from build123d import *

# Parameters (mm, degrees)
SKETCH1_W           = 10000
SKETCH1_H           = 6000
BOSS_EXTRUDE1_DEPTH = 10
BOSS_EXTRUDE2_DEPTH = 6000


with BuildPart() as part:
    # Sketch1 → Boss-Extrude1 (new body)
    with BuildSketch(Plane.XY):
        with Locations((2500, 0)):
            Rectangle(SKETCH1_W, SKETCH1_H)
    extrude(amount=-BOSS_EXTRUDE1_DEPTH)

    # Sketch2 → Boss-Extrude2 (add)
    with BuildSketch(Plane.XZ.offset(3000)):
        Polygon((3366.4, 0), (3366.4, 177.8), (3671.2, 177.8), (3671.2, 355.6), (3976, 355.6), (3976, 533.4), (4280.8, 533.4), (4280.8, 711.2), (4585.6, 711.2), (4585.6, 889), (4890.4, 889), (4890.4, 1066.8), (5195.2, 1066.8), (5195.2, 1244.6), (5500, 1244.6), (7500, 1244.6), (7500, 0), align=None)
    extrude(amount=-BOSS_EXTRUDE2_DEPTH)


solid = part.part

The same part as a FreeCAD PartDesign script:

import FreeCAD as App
import Part
import Sketcher

V = App.Vector
Q = App.Units.Quantity

doc = App.newDocument("Part")
body = doc.addObject("PartDesign::Body", "Body")

sketch1 = body.newObject("Sketcher::SketchObject", "Sketch")
sketch1.AttachmentSupport = (doc.getObject("XY_Plane"), [""])
sketch1.MapMode = "FlatFace"
sketch1.addGeometry([
    Part.LineSegment(V(-2500, 3000, 0), V(-2500, -3000, 0)),
    Part.LineSegment(V(-2500, -3000, 0), V(7500, -3000, 0)),
    Part.LineSegment(V(7500, -3000, 0), V(7500, 3000, 0)),
    Part.LineSegment(V(7500, 3000, 0), V(-2500, 3000, 0)),
], False)
sketch1.addConstraint([
    Sketcher.Constraint("Coincident", 0, 2, 1, 1),
    Sketcher.Constraint("Coincident", 1, 2, 2, 1),
    Sketcher.Constraint("Coincident", 2, 2, 3, 1),
    Sketcher.Constraint("Coincident", 3, 2, 0, 1),
    Sketcher.Constraint("Vertical", 0),
    Sketcher.Constraint("Horizontal", 1),
    Sketcher.Constraint("Vertical", 2),
    Sketcher.Constraint("Horizontal", 3),
    Sketcher.Constraint("DistanceX", 1, 1, 1, 2, Q("10000 mm")),
    Sketcher.Constraint("DistanceY", 0, 2, 0, 1, Q("6000 mm")),
    Sketcher.Constraint("DistanceX", 0, 2, -1, 1, Q("2500 mm")),
    Sketcher.Constraint("DistanceY", 0, 2, -1, 1, Q("3000 mm")),
])
pad1 = body.newObject("PartDesign::Pad", "Pad")
pad1.Profile = sketch1
pad1.Length = 10
pad1.Reversed = True

sketch2 = body.newObject("Sketcher::SketchObject", "Sketch001")
sketch2.AttachmentSupport = (doc.getObject("XZ_Plane"), [""])
sketch2.MapMode = "FlatFace"
sketch2.AttachmentOffset = App.Placement(V(0, 0, 3000), App.Rotation())
sketch2.addGeometry([
    Part.LineSegment(V(3366.4, 177.8, 0), V(3366.4, 0, 0)),
    Part.LineSegment(V(3366.4, 0, 0), V(7500, 0, 0)),
    Part.LineSegment(V(7500, 0, 0), V(7500, 1244.6, 0)),
    Part.LineSegment(V(7500, 1244.6, 0), V(5195.2, 1244.6, 0)),
    Part.LineSegment(V(5195.2, 1244.6, 0), V(5195.2, 1066.8, 0)),
    Part.LineSegment(V(5195.2, 1066.8, 0), V(4890.4, 1066.8, 0)),
    Part.LineSegment(V(4890.4, 1066.8, 0), V(4890.4, 889, 0)),
    Part.LineSegment(V(4890.4, 889, 0), V(4585.6, 889, 0)),
    Part.LineSegment(V(4585.6, 889, 0), V(4585.6, 711.2, 0)),
    Part.LineSegment(V(4585.6, 711.2, 0), V(4280.8, 711.2, 0)),
    Part.LineSegment(V(4280.8, 711.2, 0), V(4280.8, 533.4, 0)),
    Part.LineSegment(V(4280.8, 533.4, 0), V(3976, 533.4, 0)),
    Part.LineSegment(V(3976, 533.4, 0), V(3976, 355.6, 0)),
    Part.LineSegment(V(3976, 355.6, 0), V(3671.2, 355.6, 0)),
    Part.LineSegment(V(3671.2, 355.6, 0), V(3671.2, 177.8, 0)),
    Part.LineSegment(V(3671.2, 177.8, 0), V(3366.4, 177.8, 0)),
], False)
sketch2.addConstraint([
    Sketcher.Constraint("Coincident", 0, 2, 1, 1),
    Sketcher.Constraint("Coincident", 1, 2, 2, 1),
    Sketcher.Constraint("Coincident", 2, 2, 3, 1),
    Sketcher.Constraint("Coincident", 3, 2, 4, 1),
    Sketcher.Constraint("Coincident", 4, 2, 5, 1),
    Sketcher.Constraint("Coincident", 5, 2, 6, 1),
    Sketcher.Constraint("Coincident", 6, 2, 7, 1),
    Sketcher.Constraint("Coincident", 7, 2, 8, 1),
    Sketcher.Constraint("Coincident", 8, 2, 9, 1),
    Sketcher.Constraint("Coincident", 9, 2, 10, 1),
    Sketcher.Constraint("Coincident", 10, 2, 11, 1),
    Sketcher.Constraint("Coincident", 11, 2, 12, 1),
    Sketcher.Constraint("Coincident", 12, 2, 13, 1),
    Sketcher.Constraint("Coincident", 13, 2, 14, 1),
    Sketcher.Constraint("Coincident", 14, 2, 15, 1),
    Sketcher.Constraint("Coincident", 15, 2, 0, 1),
    Sketcher.Constraint("Vertical", 0),
    Sketcher.Constraint("Horizontal", 1),
    Sketcher.Constraint("Vertical", 2),
    Sketcher.Constraint("Horizontal", 3),
    Sketcher.Constraint("Vertical", 4),
    Sketcher.Constraint("Horizontal", 5),
    Sketcher.Constraint("Vertical", 6),
    Sketcher.Constraint("Horizontal", 7),
    Sketcher.Constraint("Vertical", 8),
    Sketcher.Constraint("Horizontal", 9),
    Sketcher.Constraint("Vertical", 10),
    Sketcher.Constraint("Horizontal", 11),
    Sketcher.Constraint("Vertical", 12),
    Sketcher.Constraint("Horizontal", 13),
    Sketcher.Constraint("Vertical", 14),
    Sketcher.Constraint("Horizontal", 15),
    Sketcher.Constraint("PointOnObject", 0, 2, -1),
    Sketcher.Constraint("Equal", 5, 7),
    Sketcher.Constraint("Equal", 7, 9),
    Sketcher.Constraint("Equal", 9, 11),
    Sketcher.Constraint("Equal", 11, 13),
    Sketcher.Constraint("Equal", 13, 15),
    Sketcher.Constraint("Equal", 0, 4),
    Sketcher.Constraint("Equal", 4, 6),
    Sketcher.Constraint("Equal", 6, 8),
    Sketcher.Constraint("Equal", 8, 10),
    Sketcher.Constraint("Equal", 10, 12),
    Sketcher.Constraint("Equal", 12, 14),
    Sketcher.Constraint("DistanceX", 1, 1, 1, 2, Q("4133.6 mm")),
    Sketcher.Constraint("DistanceX", 3, 2, 3, 1, Q("2304.8 mm")),
    Sketcher.Constraint("DistanceY", 0, 2, 0, 1, Q("177.8 mm")),
    Sketcher.Constraint("DistanceX", -1, 1, 1, 2, Q("7500 mm")),
])
pad2 = body.newObject("PartDesign::Pad", "Pad001")
pad2.Profile = sketch2
pad2.Length = 6000
pad2.Reversed = True

doc.recompute()
